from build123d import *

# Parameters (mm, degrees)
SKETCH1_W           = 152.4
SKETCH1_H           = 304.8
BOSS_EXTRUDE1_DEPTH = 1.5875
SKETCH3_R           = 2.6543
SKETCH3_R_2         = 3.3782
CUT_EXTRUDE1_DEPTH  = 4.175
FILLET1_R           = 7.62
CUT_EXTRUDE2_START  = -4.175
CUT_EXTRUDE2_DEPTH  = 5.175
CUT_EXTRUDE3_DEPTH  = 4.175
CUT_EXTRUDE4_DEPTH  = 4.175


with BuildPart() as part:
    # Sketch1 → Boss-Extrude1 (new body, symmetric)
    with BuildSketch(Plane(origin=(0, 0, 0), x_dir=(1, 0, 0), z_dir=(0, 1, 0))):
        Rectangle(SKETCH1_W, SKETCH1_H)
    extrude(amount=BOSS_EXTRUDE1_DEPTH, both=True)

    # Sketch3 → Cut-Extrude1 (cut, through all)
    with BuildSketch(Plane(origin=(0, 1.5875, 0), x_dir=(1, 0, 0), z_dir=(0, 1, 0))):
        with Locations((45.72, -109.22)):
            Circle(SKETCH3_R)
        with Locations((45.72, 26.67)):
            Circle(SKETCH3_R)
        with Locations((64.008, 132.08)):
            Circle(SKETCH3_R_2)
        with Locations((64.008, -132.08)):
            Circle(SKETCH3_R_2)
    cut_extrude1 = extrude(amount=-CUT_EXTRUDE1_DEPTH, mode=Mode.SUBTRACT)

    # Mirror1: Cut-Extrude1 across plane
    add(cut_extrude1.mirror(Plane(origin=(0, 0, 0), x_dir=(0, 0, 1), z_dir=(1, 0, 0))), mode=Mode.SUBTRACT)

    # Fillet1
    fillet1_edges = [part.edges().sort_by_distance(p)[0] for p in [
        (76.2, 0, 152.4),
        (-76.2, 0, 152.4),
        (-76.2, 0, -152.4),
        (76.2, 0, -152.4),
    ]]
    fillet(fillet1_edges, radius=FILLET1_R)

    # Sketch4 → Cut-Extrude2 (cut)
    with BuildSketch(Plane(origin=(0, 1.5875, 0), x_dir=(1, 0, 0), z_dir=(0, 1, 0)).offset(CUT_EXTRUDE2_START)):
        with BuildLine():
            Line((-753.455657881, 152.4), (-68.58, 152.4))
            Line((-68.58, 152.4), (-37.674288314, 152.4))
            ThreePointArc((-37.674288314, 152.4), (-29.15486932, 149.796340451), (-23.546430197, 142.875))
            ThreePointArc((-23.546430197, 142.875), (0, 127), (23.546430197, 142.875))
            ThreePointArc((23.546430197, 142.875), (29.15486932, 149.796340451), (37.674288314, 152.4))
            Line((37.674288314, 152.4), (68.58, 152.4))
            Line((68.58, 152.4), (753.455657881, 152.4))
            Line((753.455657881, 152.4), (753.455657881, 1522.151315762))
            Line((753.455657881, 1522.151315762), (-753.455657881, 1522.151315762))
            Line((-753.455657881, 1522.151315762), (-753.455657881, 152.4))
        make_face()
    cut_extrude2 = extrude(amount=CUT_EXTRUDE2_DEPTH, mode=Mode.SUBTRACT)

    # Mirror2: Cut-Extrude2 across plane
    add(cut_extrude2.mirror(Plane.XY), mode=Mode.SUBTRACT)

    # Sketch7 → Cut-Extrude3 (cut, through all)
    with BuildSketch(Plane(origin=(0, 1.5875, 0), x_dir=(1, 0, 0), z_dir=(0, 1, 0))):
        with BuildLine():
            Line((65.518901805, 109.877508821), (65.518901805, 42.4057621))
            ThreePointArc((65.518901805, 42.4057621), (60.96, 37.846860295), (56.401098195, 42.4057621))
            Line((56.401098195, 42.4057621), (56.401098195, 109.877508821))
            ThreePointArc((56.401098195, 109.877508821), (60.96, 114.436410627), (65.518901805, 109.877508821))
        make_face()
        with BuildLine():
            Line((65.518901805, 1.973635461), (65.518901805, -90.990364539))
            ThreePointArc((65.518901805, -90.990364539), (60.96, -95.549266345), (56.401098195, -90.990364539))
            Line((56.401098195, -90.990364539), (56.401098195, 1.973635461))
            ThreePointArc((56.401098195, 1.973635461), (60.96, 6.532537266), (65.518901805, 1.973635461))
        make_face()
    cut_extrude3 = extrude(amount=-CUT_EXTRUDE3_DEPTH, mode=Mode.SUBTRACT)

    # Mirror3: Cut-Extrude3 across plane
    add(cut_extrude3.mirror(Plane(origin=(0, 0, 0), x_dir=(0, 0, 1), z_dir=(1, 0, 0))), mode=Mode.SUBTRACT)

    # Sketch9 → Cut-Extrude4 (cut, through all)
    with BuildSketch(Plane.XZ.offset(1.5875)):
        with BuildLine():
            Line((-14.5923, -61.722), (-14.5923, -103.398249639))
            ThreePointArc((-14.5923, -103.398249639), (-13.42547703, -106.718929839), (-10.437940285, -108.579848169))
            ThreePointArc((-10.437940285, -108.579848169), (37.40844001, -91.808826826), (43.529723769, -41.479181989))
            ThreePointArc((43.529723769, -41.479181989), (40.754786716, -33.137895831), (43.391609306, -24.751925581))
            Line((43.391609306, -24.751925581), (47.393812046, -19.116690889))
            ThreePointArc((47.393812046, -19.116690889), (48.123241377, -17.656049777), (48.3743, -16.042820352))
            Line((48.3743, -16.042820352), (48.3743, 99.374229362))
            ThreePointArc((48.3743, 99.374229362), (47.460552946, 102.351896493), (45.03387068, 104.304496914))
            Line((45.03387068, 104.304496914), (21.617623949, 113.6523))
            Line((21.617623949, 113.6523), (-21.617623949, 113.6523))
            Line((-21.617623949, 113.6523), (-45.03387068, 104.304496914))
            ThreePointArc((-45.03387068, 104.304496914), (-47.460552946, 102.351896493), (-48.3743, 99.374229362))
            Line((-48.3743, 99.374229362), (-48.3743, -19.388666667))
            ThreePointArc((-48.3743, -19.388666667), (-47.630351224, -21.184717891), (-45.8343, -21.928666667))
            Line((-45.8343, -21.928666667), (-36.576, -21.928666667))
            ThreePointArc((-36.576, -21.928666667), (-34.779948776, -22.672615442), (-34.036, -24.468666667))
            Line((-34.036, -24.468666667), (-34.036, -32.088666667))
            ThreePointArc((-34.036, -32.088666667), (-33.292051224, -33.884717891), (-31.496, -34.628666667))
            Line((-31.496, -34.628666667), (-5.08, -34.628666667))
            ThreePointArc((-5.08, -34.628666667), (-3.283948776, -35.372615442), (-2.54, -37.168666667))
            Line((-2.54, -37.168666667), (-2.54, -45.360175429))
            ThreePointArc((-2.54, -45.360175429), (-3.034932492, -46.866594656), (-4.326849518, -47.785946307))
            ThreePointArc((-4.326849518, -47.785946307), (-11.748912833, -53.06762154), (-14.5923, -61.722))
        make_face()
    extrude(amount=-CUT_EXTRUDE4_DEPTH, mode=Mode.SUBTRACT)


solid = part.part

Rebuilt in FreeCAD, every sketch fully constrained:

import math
import FreeCAD as App
import Part
import Sketcher
from FreeCAD import Vector
Q = App.Units.Quantity


def edges_at(feature, points):
    """Names of the edges that pass closest to the given points."""
    edges = feature.Shape.Edges
    near = lambda p: min(range(len(edges)), key=lambda i: edges[i].distToShape(Part.Vertex(*p))[0])
    return sorted({f"Edge{near(p) + 1}" for p in points})

doc = App.newDocument("Part")
params = doc.addObject("Spreadsheet::Sheet", "Params")
for row, (alias, value) in enumerate([
    ("sketch1_width", "6 in"),
    ("sketch1_height", "12 in"),
    ("pad1_length", "0.125 in"),
    ("sketch2_diameter", "0.209 in"),
    ("sketch2_diameter2", "0.266 in"),
    ("fillet_radius", "0.3 in"),
    ("sketch3_radius", "1 in"),
    ("sketch3_radius2", "0.6 in"),
    ("pocket2_length", "5.175 mm"),
    ("sketch4_height", "3.66 in"),
    ("sketch5_radius", "0.1 in"),
    ("sketch5_height", "0.3 in"),
    ("sketch5_radius2", "0.209 in"),
    ("sketch5_width", "1.04 in"),
], start=1):
    params.set(f"A{row}", alias)
    params.set(f"B{row}", "=" + value)
    params.setAlias(f"B{row}", alias)

body = doc.addObject("PartDesign::Body", "Body")

sketch1 = body.newObject("Sketcher::SketchObject", "Sketch")
sketch1.AttachmentSupport = (doc.getObject("XZ_Plane"), [""])
sketch1.MapMode = "FlatFace"
sketch1.addGeometry([
    Part.LineSegment(Vector(-76, -152, 0), Vector(-76, 152, 0)),
    Part.LineSegment(Vector(-76, 152, 0), Vector(76, 152, 0)),
    Part.LineSegment(Vector(76, 152, 0), Vector(76, -152, 0)),
    Part.LineSegment(Vector(76, -152, 0), Vector(-76, -152, 0)),
], False)
sketch1.addConstraint([
    Sketcher.Constraint("Coincident", 0, 2, 1, 1),
    Sketcher.Constraint("Coincident", 1, 2, 2, 1),
    Sketcher.Constraint("Coincident", 2, 2, 3, 1),
    Sketcher.Constraint("Coincident", 3, 2, 0, 1),
    Sketcher.Constraint("Vertical", 0),
    Sketcher.Constraint("Horizontal", 1),
    Sketcher.Constraint("Vertical", 2),
    Sketcher.Constraint("Horizontal", 3),
    Sketcher.Constraint("Symmetric", 0, 2, 2, 2, -1, 1),
    Sketcher.Constraint("DistanceX", 1, 1, 1, 2, Q("6 in")),
    Sketcher.Constraint("DistanceY", 0, 1, 0, 2, Q("12 in")),
])
sketch1.setExpression("Constraints[9]", "Params.sketch1_width")
sketch1.setExpression("Constraints[10]", "Params.sketch1_height")
pad1 = body.newObject("PartDesign::Pad", "Pad")
pad1.Profile = sketch1
pad1.setExpression("Length", "Params.pad1_length")
pad1.Midplane = True

sketch2 = body.newObject("Sketcher::SketchObject", "Sketch001")
sketch2.AttachmentSupport = (doc.getObject("XZ_Plane"), [""])
sketch2.MapMode = "FlatFace"
sketch2.AttachmentOffset = App.Placement(Vector(0, 0, -0.0625 * 25.4), App.Rotation())
sketch2.addGeometry([
    Part.Circle(Vector(45.7, 109.2, 0), Vector(0, 0, 1), 2.7),
    Part.Circle(Vector(45.7, -26.7, 0), Vector(0, 0, 1), 2.7),
    Part.Circle(Vector(64, -132.1, 0), Vector(0, 0, 1), 3.4),
    Part.Circle(Vector(64, 132.1, 0), Vector(0, 0, 1), 3.4),
], False)
sketch2.addConstraint([
    Sketcher.Constraint("Equal", 0, 1),
    Sketcher.Constraint("Equal", 2, 3),
    Sketcher.Constraint("Symmetric", 2, 3, 3, 3, -1),
    Sketcher.Constraint("Vertical", 0, 3, 1, 3),
    Sketcher.Constraint("Diameter", 0, Q("0.209 in")),
    Sketcher.Constraint("Diameter", 2, Q("0.266 in")),
    Sketcher.Constraint("DistanceX", -1, 1, 0, 3, Q("1.8 in")),
    Sketcher.Constraint("DistanceY", -1, 1, 0, 3, Q("4.3 in")),
    Sketcher.Constraint("DistanceY", 2, 3, -1, 1, Q("5.2 in")),
    Sketcher.Constraint("DistanceY", 1, 3, -1, 1, Q("1.05 in")),
    Sketcher.Constraint("DistanceX", -1, 1, 2, 3, Q("2.52 in")),
])
sketch2.setExpression("Constraints[4]", "Params.sketch2_diameter")
sketch2.setExpression("Constraints[5]", "Params.sketch2_diameter2")
pocket1 = body.newObject("PartDesign::Pocket", "Pocket")
pocket1.Profile = sketch2
pocket1.Type = "ThroughAll"
pocket1.Reversed = True
doc.recompute()

mirrored = body.newObject("PartDesign::Mirrored", "Mirrored")
mirrored.Originals = [pocket1]
mirrored.MirrorPlane = (doc.getObject("YZ_Plane"), [""])
body.Tip = mirrored
doc.recompute()

fillet = body.newObject("PartDesign::Fillet", "Fillet")
fillet.Base = (mirrored, edges_at(mirrored, [
    (76.2, 0, 152.4),
    (-76.2, 0, 152.4),
    (-76.2, 0, -152.4),
    (76.2, 0, -152.4),
]))
fillet.setExpression("Radius", "Params.fillet_radius")

sketch3 = body.newObject("Sketcher::SketchObject", "Sketch002")
sketch3.AttachmentSupport = (doc.getObject("XZ_Plane"), [""])
sketch3.MapMode = "FlatFace"
sketch3.AttachmentOffset = App.Placement(Vector(0, 0, 2.5875), App.Rotation())
sketch3.addGeometry([
    Part.LineSegment(Vector(-753, -152, 0), Vector(-38, -152, 0)),
    Part.ArcOfCircle(Part.Circle(Vector(-38, -137, 0), Vector(0, 0, 1), 15), math.radians(-90), math.radians(-22)),
    Part.ArcOfCircle(Part.Circle(Vector(0, -152, 0), Vector(0, 0, 1), 25), math.radians(22), math.radians(158)),
    Part.ArcOfCircle(Part.Circle(Vector(38, -137, 0), Vector(0, 0, 1), 15), math.radians(-158), math.radians(-90)),
    Part.LineSegment(Vector(38, -152, 0), Vector(753, -152, 0)),
    Part.LineSegment(Vector(753, -152, 0), Vector(753, -1522, 0)),
    Part.LineSegment(Vector(753, -1522, 0), Vector(-753, -1522, 0)),
    Part.LineSegment(Vector(-753, -1522, 0), Vector(-753, -152, 0)),
], False)
sketch3.addConstraint([
    Sketcher.Constraint("Tangent", 0, 2, 1, 1),
    Sketcher.Constraint("Tangent", 1, 2, 2, 2),
    Sketcher.Constraint("Tangent", 2, 1, 3, 1),
    Sketcher.Constraint("Tangent", 3, 2, 4, 1),
    Sketcher.Constraint("Coincident", 4, 2, 5, 1),
    Sketcher.Constraint("Coincident", 5, 2, 6, 1),
    Sketcher.Constraint("Coincident", 6, 2, 7, 1),
    Sketcher.Constraint("Coincident", 7, 2, 0, 1),
    Sketcher.Constraint("Horizontal", 0),
    Sketcher.Constraint("Horizontal", 4),
    Sketcher.Constraint("Vertical", 5),
    Sketcher.Constraint("Horizontal", 6),
    Sketcher.Constraint("Vertical", 7),
    Sketcher.Constraint("Equal", 1, 3),
    Sketcher.Constraint("Symmetric", 1, 3, 3, 3, -2),
    Sketcher.Constraint("Horizontal", 2, 3, 0, 2),
    Sketcher.Constraint("Equal", 0, 4),
    Sketcher.Constraint("Radius", 2, Q("1 in")),
    Sketcher.Constraint("Radius", 1, Q("0.6 in")),
    Sketcher.Constraint("DistanceY", 2, 3, -1, 1, Q("6 in")),
    Sketcher.Constraint("DistanceX", 0, 1, 0, 2, Q("715.78137 mm")),
    Sketcher.Constraint("DistanceY", 5, 2, 5, 1, Q("1369.751316 mm")),
])
sketch3.setExpression("Constraints[17]", "Params.sketch3_radius")
sketch3.setExpression("Constraints[18]", "Params.sketch3_radius2")
pocket2 = body.newObject("PartDesign::Pocket", "Pocket001")
pocket2.Profile = sketch3
pocket2.setExpression("Length", "Params.pocket2_length")
doc.recompute()

mirrored2 = body.newObject("PartDesign::Mirrored", "Mirrored001")
mirrored2.Originals = [pocket2]
mirrored2.MirrorPlane = (doc.getObject("XY_Plane"), [""])
body.Tip = mirrored2

sketch4 = body.newObject("Sketcher::SketchObject", "Sketch003")
sketch4.AttachmentSupport = (doc.getObject("XZ_Plane"), [""])
sketch4.MapMode = "FlatFace"
sketch4.AttachmentOffset = App.Placement(Vector(0, 0, -0.0625 * 25.4), App.Rotation())
sketch4.addGeometry([
    Part.LineSegment(Vector(65.5, -42.4, 0), Vector(65.5, -109.9, 0)),
    Part.ArcOfCircle(Part.Circle(Vector(61, -109.9, 0), Vector(0, 0, 1), 4.6), math.radians(180), math.radians(360)),
    Part.LineSegment(Vector(56.4, -109.9, 0), Vector(56.4, -42.4, 0)),
    Part.ArcOfCircle(Part.Circle(Vector(61, -42.4, 0), Vector(0, 0, 1), 4.6), math.radians(0), math.radians(180)),
    Part.LineSegment(Vector(65.5, 91, 0), Vector(65.5, -2, 0)),
    Part.ArcOfCircle(Part.Circle(Vector(61, -2, 0), Vector(0, 0, 1), 4.6), math.radians(180), math.radians(360)),
    Part.LineSegment(Vector(56.4, -2, 0), Vector(56.4, 91, 0)),
    Part.ArcOfCircle(Part.Circle(Vector(61, 91, 0), Vector(0, 0, 1), 4.6), math.radians(0), math.radians(180)),
], False)
sketch4.addConstraint([
    Sketcher.Constraint("Tangent", 0, 2, 1, 2),
    Sketcher.Constraint("Tangent", 1, 1, 2, 1),
    Sketcher.Constraint("Tangent", 2, 2, 3, 2),
    Sketcher.Constraint("Tangent", 3, 1, 0, 1),
    Sketcher.Constraint("Tangent", 4, 2, 5, 2),
    Sketcher.Constraint("Tangent", 5, 1, 6, 1),
    Sketcher.Constraint("Tangent", 6, 2, 7, 2),
    Sketcher.Constraint("Tangent", 7, 1, 4, 1),
    Sketcher.Constraint("Vertical", 0),
    Sketcher.Constraint("Vertical", 2),
    Sketcher.Constraint("Vertical", 4),
    Sketcher.Constraint("Vertical", 6),
    Sketcher.Constraint("Equal", 3, 5),
    Sketcher.Constraint("Vertical", 3, 3, 5, 3),
    Sketcher.Constraint("DistanceY", 4, 2, 4, 1, Q("3.66 in")),
    Sketcher.Constraint("DistanceX", -1, 1, 1, 3, Q("2.4 in")),
    Sketcher.Constraint("Radius", 1, Q("4.558902 mm")),
    Sketcher.Constraint("DistanceY", 0, 2, 0, 1, Q("67.471747 mm")),
    Sketcher.Constraint("DistanceY", 1, 3, -1, 1, Q("109.877509 mm")),
    Sketcher.Constraint("DistanceY", 5, 3, -1, 1, Q("1.973635 mm")),
])
sketch4.setExpression("Constraints[14]", "Params.sketch4_height")
pocket3 = body.newObject("PartDesign::Pocket", "Pocket002")
pocket3.Profile = sketch4
pocket3.Type = "ThroughAll"
pocket3.Reversed = True
doc.recompute()

mirrored3 = body.newObject("PartDesign::Mirrored", "Mirrored002")
mirrored3.Originals = [pocket3]
mirrored3.MirrorPlane = (doc.getObject("YZ_Plane"), [""])
body.Tip = mirrored3

sketch5 = body.newObject("Sketcher::SketchObject", "Sketch004")
sketch5.AttachmentSupport = (doc.getObject("XZ_Plane"), [""])
sketch5.MapMode = "FlatFace"
sketch5.AttachmentOffset = App.Placement(Vector(0, 0, 0.0625 * 25.4), App.Rotation())
sketch5.addGeometry([
    Part.LineSegment(Vector(-14.6, -61.7, 0), Vector(-14.6, -103.4, 0)),
    Part.ArcOfCircle(Part.Circle(Vector(-9.3, -103.4, 0), Vector(0, 0, 1), 5.3), math.radians(-180), math.radians(-103)),
    Part.ArcOfCircle(Part.Circle(Vector(0, -61.7, 0), Vector(0, 0, 1), 48), math.radians(-103), math.radians(25)),
    Part.ArcOfCircle(Part.Circle(Vector(55, -33, 0), Vector(0, 0, 1), 14.3), math.radians(145), math.radians(216)),
    Part.LineSegment(Vector(43.4, -24.8, 0), Vector(47.4, -19.1, 0)),
    Part.ArcOfCircle(Part.Circle(Vector(43.1, -16, 0), Vector(0, 0, 1), 5.3), math.radians(-35), math.radians(0)),
    Part.LineSegment(Vector(48.4, -16, 0), Vector(48.4, 99.4, 0)),
    Part.ArcOfCircle(Part.Circle(Vector(43.1, 99.4, 0), Vector(0, 0, 1), 5.3), math.radians(0), math.radians(68)),
    Part.LineSegment(Vector(45, 104.3, 0), Vector(21.6, 113.7, 0)),
    Part.LineSegment(Vector(21.6, 113.7, 0), Vector(-21.6, 113.7, 0)),
    Part.LineSegment(Vector(-21.6, 113.7, 0), Vector(-45, 104.3, 0)),
    Part.ArcOfCircle(Part.Circle(Vector(-43.1, 99.4, 0), Vector(0, 0, 1), 5.3), math.radians(112), math.radians(180)),
    Part.LineSegment(Vector(-48.4, 99.4, 0), Vector(-48.4, -19.4, 0)),
    Part.ArcOfCircle(Part.Circle(Vector(-45.8, -19.4, 0), Vector(0, 0, 1), 2.5), math.radians(-180), math.radians(-90)),
    Part.LineSegment(Vector(-45.8, -21.9, 0), Vector(-36.6, -21.9, 0)),
    Part.ArcOfCircle(Part.Circle(Vector(-36.6, -24.5, 0), Vector(0, 0, 1), 2.5), math.radians(0), math.radians(90)),
    Part.LineSegment(Vector(-34, -24.5, 0), Vector(-34, -32.1, 0)),
    Part.ArcOfCircle(Part.Circle(Vector(-31.5, -32.1, 0), Vector(0, 0, 1), 2.5), math.radians(-180), math.radians(-90)),
    Part.LineSegment(Vector(-31.5, -34.6, 0), Vector(-5.1, -34.6, 0)),
    Part.ArcOfCircle(Part.Circle(Vector(-5.1, -37.2, 0), Vector(0, 0, 1), 2.5), math.radians(0), math.radians(90)),
    Part.LineSegment(Vector(-2.5, -37.2, 0), Vector(-2.5, -45.4, 0)),
    Part.ArcOfCircle(Part.Circle(Vector(-5.1, -45.4, 0), Vector(0, 0, 1), 2.5), math.radians(-73), math.radians(0)),
    Part.ArcOfCircle(Part.Circle(Vector(0, -61.7, 0), Vector(0, 0, 1), 14.6), math.radians(107), math.radians(180)),
], False)
sketch5.addConstraint([
    Sketcher.Constraint("Tangent", 0, 2, 1, 1),
    Sketcher.Constraint("Tangent", 1, 2, 2, 1),
    Sketcher.Constraint("Coincident", 2, 2, 3, 2),
    Sketcher.Constraint("Tangent", 3, 1, 4, 1),
    Sketcher.Constraint("Tangent", 4, 2, 5, 1),
    Sketcher.Constraint("Tangent", 5, 2, 6, 1),
    Sketcher.Constraint("Tangent", 6, 2, 7, 1),
    Sketcher.Constraint("Tangent", 7, 2, 8, 1),
    Sketcher.Constraint("Coincident", 8, 2, 9, 1),
    Sketcher.Constraint("Coincident", 9, 2, 10, 1),
    Sketcher.Constraint("Tangent", 10, 2, 11, 1),
    Sketcher.Constraint("Tangent", 11, 2, 12, 1),
    Sketcher.Constraint("Tangent", 12, 2, 13, 1),
    Sketcher.Constraint("Tangent", 13, 2, 14, 1),
    Sketcher.Constraint("Tangent", 14, 2, 15, 2),
    Sketcher.Constraint("Tangent", 15, 1, 16, 1),
    Sketcher.Constraint("Tangent", 16, 2, 17, 1),
    Sketcher.Constraint("Tangent", 17, 2, 18, 1),
    Sketcher.Constraint("Tangent", 18, 2, 19, 2),
    Sketcher.Constraint("Tangent", 19, 1, 20, 1),
    Sketcher.Constraint("Tangent", 20, 2, 21, 2),
    Sketcher.Constraint("Tangent", 21, 1, 22, 1),
    Sketcher.Constraint("Tangent", 22, 2, 0, 1),
    Sketcher.Constraint("Vertical", 0),
    Sketcher.Constraint("Vertical", 6),
    Sketcher.Constraint("Horizontal", 9),
    Sketcher.Constraint("Vertical", 12),
    Sketcher.Constraint("Horizontal", 14),
    Sketcher.Constraint("Vertical", 16),
    Sketcher.Constraint("Horizontal", 18),
    Sketcher.Constraint("Vertical", 20),
    Sketcher.Constraint("Coincident", 22, 3, 2, 3),
    Sketcher.Constraint("Equal", 1, 5),
    Sketcher.Constraint("Equal", 5, 7),
    Sketcher.Constraint("Equal", 7, 11),
    Sketcher.Constraint("Equal", 13, 15),
    Sketcher.Constraint("Equal", 15, 17),
    Sketcher.Constraint("Equal", 17, 19),
    Sketcher.Constraint("Equal", 19, 21),
    Sketcher.Constraint("Symmetric", 7, 3, 11, 3, -2),
    Sketcher.Constraint("PointOnObject", 2, 3, -2),
    Sketcher.Constraint("Horizontal", 7, 2, 10, 2),
    Sketcher.Constraint("Radius", 13, Q("0.1 in")),
    Sketcher.Constraint("DistanceY", 16, 2, 16, 1, Q("0.3 in")),
    Sketcher.Constraint("Radius", 1, Q("0.209 in")),
    Sketcher.Constraint("DistanceX", 18, 1, 18, 2, Q("1.04 in")),
    Sketcher.Constraint("DistanceY", 3, 3, -1, 1, Q("1.3 in")),
    Sketcher.Constraint("DistanceX", 19, 3, -1, 1, Q("0.2 in")),
    Sketcher.Constraint("Radius", 22, Q("0.5745 in")),
    Sketcher.Constraint("DistanceX", 13, 3, 5, 3, Q("3.5 in")),
    Sketcher.Constraint("DistanceY", 2, 3, -1, 1, Q("2.43 in")),
    Sketcher.Constraint("Radius", 2, Q("48.006338 mm")),
    Sketcher.Constraint("DistanceY", -1, 1, 8, 2, Q("4.4745 in")),
    Sketcher.Constraint("Radius", 3, Q("14.279033 mm")),
    Sketcher.Constraint("DistanceY", 6, 1, 6, 2, Q("115.41705 mm")),
    Sketcher.Constraint("DistanceY", 20, 2, 20, 1, Q("8.191509 mm")),
    Sketcher.Constraint("DistanceX", 9, 2, 9, 1, Q("43.235248 mm")),
    Sketcher.Constraint("DistanceY", 12, 2, 12, 1, Q("118.762896 mm")),
    Sketcher.Constraint("DistanceY", 2, 2, -1, 1, Q("41.479182 mm")),
])
sketch5.setExpression("Constraints[42]", "Params.sketch5_radius")
sketch5.setExpression("Constraints[43]", "Params.sketch5_height")
sketch5.setExpression("Constraints[44]", "Params.sketch5_radius2")
sketch5.setExpression("Constraints[45]", "Params.sketch5_width")
pocket4 = body.newObject("PartDesign::Pocket", "Pocket003")
pocket4.Profile = sketch5
pocket4.Type = "ThroughAll"

doc.recompute()
